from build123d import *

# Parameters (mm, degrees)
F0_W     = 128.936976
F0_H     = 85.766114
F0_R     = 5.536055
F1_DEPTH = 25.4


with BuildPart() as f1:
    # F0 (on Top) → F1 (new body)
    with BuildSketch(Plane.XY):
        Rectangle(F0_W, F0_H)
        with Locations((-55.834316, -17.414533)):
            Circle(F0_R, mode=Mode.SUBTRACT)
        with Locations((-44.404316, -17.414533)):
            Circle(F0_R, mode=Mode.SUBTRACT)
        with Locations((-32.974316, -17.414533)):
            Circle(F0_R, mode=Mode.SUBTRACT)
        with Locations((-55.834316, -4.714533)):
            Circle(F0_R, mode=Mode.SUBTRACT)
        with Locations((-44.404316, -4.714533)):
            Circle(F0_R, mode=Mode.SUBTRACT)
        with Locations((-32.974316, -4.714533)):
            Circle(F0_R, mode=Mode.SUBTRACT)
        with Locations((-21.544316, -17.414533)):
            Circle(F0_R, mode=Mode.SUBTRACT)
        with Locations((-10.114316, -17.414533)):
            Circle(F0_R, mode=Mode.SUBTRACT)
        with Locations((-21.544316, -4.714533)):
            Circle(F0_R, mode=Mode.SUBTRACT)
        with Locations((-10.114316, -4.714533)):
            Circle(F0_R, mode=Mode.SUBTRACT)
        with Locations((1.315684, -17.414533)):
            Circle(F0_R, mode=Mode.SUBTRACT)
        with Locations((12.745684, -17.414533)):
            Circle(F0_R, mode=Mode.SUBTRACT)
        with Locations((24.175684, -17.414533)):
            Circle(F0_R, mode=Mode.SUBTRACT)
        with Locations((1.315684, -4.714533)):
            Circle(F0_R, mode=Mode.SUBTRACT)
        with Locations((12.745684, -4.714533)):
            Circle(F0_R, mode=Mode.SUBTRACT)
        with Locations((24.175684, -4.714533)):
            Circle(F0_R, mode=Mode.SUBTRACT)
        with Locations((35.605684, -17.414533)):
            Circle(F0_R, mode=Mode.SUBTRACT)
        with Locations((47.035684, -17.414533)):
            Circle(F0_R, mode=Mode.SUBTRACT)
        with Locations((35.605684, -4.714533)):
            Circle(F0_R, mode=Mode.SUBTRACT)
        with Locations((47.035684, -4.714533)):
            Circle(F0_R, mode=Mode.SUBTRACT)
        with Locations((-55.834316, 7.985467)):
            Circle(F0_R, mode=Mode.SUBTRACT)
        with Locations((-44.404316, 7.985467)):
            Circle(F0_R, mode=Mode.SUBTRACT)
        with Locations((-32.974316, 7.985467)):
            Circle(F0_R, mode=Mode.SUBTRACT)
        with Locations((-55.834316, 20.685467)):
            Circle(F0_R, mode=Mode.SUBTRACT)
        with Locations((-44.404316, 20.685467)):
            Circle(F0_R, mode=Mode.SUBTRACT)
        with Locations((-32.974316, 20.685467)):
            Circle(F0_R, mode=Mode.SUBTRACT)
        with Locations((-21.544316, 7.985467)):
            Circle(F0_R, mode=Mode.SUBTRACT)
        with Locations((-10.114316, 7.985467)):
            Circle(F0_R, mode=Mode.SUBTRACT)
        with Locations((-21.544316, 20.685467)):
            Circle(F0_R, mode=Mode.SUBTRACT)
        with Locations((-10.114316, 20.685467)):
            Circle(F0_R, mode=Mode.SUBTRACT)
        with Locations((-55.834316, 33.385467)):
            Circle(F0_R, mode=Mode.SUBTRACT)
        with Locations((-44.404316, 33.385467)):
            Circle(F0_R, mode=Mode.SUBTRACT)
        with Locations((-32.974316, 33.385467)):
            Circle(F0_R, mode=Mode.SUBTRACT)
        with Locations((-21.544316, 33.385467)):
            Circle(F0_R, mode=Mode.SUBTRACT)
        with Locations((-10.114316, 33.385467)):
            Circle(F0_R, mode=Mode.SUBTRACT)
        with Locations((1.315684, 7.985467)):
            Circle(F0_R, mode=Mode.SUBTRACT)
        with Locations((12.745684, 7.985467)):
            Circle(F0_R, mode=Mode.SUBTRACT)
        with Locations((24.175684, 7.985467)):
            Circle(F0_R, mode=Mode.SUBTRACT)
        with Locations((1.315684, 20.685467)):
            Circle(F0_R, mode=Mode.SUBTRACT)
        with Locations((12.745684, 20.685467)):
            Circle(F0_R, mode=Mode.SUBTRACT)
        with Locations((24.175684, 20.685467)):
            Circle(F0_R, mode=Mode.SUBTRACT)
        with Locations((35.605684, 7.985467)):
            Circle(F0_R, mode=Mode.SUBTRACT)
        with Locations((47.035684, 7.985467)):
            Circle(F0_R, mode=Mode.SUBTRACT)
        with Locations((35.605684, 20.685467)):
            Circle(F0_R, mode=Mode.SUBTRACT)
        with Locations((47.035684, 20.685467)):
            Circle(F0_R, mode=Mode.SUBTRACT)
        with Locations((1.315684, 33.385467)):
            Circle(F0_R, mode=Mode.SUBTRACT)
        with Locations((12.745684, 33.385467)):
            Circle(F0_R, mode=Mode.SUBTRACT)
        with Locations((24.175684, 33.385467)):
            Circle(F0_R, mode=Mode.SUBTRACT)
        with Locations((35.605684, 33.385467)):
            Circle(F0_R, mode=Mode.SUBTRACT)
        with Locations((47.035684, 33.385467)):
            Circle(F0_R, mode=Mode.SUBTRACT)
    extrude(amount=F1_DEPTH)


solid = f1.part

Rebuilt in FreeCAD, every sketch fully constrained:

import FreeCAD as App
import Part
import Sketcher
from FreeCAD import Vector
Q = App.Units.Quantity

doc = App.newDocument("Part")
body = doc.addObject("PartDesign::Body", "Body")

# Sketch on XY plane
sketch1 = doc.addObject("Sketcher::SketchObject", "Sketch")
body.addObject(sketch1)
sketch1.AttachmentSupport = (doc.XY_Plane, [""])
sketch1.MapMode = "FlatFace"
sketch1.addGeometry(Part.LineSegment(Vector(-64, 43, 0), Vector(-64, -43, 0)), False)
sketch1.addGeometry(Part.LineSegment(Vector(-64, -43, 0), Vector(64, -43, 0)), False)
sketch1.addGeometry(Part.LineSegment(Vector(64, -43, 0), Vector(64, 43, 0)), False)
sketch1.addGeometry(Part.LineSegment(Vector(64, 43, 0), Vector(-64, 43, 0)), False)
sketch1.addGeometry(Part.Circle(Vector(-56, -17, 0), Vector(0, 0, 1), 6), False)
sketch1.addGeometry(Part.Circle(Vector(-44, -17, 0), Vector(0, 0, 1), 6), False)
sketch1.addGeometry(Part.Circle(Vector(-33, -17, 0), Vector(0, 0, 1), 6), False)
sketch1.addGeometry(Part.Circle(Vector(-22, -17, 0), Vector(0, 0, 1), 6), False)
sketch1.addGeometry(Part.Circle(Vector(-10, -17, 0), Vector(0, 0, 1), 6), False)
sketch1.addGeometry(Part.Circle(Vector(-56, -5, 0), Vector(0, 0, 1), 6), False)
sketch1.addGeometry(Part.Circle(Vector(-44, -5, 0), Vector(0, 0, 1), 6), False)
sketch1.addGeometry(Part.Circle(Vector(-33, -5, 0), Vector(0, 0, 1), 6), False)
sketch1.addGeometry(Part.Circle(Vector(-22, -5, 0), Vector(0, 0, 1), 6), False)
sketch1.addGeometry(Part.Circle(Vector(-10, -5, 0), Vector(0, 0, 1), 6), False)
sketch1.addGeometry(Part.Circle(Vector(1, -17, 0), Vector(0, 0, 1), 6), False)
sketch1.addGeometry(Part.Circle(Vector(13, -17, 0), Vector(0, 0, 1), 6), False)
sketch1.addGeometry(Part.Circle(Vector(24, -17, 0), Vector(0, 0, 1), 6), False)
sketch1.addGeometry(Part.Circle(Vector(36, -17, 0), Vector(0, 0, 1), 6), False)
sketch1.addGeometry(Part.Circle(Vector(47, -17, 0), Vector(0, 0, 1), 6), False)
sketch1.addGeometry(Part.Circle(Vector(1, -5, 0), Vector(0, 0, 1), 6), False)
sketch1.addGeometry(Part.Circle(Vector(13, -5, 0), Vector(0, 0, 1), 6), False)
sketch1.addGeometry(Part.Circle(Vector(24, -5, 0), Vector(0, 0, 1), 6), False)
sketch1.addGeometry(Part.Circle(Vector(36, -5, 0), Vector(0, 0, 1), 6), False)
sketch1.addGeometry(Part.Circle(Vector(47, -5, 0), Vector(0, 0, 1), 6), False)
sketch1.addGeometry(Part.Circle(Vector(-56, 8, 0), Vector(0, 0, 1), 6), False)
sketch1.addGeometry(Part.Circle(Vector(-44, 8, 0), Vector(0, 0, 1), 6), False)
sketch1.addGeometry(Part.Circle(Vector(-33, 8, 0), Vector(0, 0, 1), 6), False)
sketch1.addGeometry(Part.Circle(Vector(-56, 21, 0), Vector(0, 0, 1), 6), False)
sketch1.addGeometry(Part.Circle(Vector(-44, 21, 0), Vector(0, 0, 1), 6), False)
sketch1.addGeometry(Part.Circle(Vector(-33, 21, 0), Vector(0, 0, 1), 6), False)
sketch1.addGeometry(Part.Circle(Vector(-22, 8, 0), Vector(0, 0, 1), 6), False)
sketch1.addGeometry(Part.Circle(Vector(-10, 8, 0), Vector(0, 0, 1), 6), False)
sketch1.addGeometry(Part.Circle(Vector(-22, 21, 0), Vector(0, 0, 1), 6), False)
sketch1.addGeometry(Part.Circle(Vector(-10, 21, 0), Vector(0, 0, 1), 6), False)
sketch1.addGeometry(Part.Circle(Vector(-56, 33, 0), Vector(0, 0, 1), 6), False)
sketch1.addGeometry(Part.Circle(Vector(-44, 33, 0), Vector(0, 0, 1), 6), False)
sketch1.addGeometry(Part.Circle(Vector(-33, 33, 0), Vector(0, 0, 1), 6), False)
sketch1.addGeometry(Part.Circle(Vector(-22, 33, 0), Vector(0, 0, 1), 6), False)
sketch1.addGeometry(Part.Circle(Vector(-10, 33, 0), Vector(0, 0, 1), 6), False)
sketch1.addGeometry(Part.Circle(Vector(1, 8, 0), Vector(0, 0, 1), 6), False)
sketch1.addGeometry(Part.Circle(Vector(13, 8, 0), Vector(0, 0, 1), 6), False)
sketch1.addGeometry(Part.Circle(Vector(1, 21, 0), Vector(0, 0, 1), 6), False)
sketch1.addGeometry(Part.Circle(Vector(13, 21, 0), Vector(0, 0, 1), 6), False)
sketch1.addGeometry(Part.Circle(Vector(24, 8, 0), Vector(0, 0, 1), 6), False)
sketch1.addGeometry(Part.Circle(Vector(36, 8, 0), Vector(0, 0, 1), 6), False)
sketch1.addGeometry(Part.Circle(Vector(47, 8, 0), Vector(0, 0, 1), 6), False)
sketch1.addGeometry(Part.Circle(Vector(24, 21, 0), Vector(0, 0, 1), 6), False)
sketch1.addGeometry(Part.Circle(Vector(36, 21, 0), Vector(0, 0, 1), 6), False)
sketch1.addGeometry(Part.Circle(Vector(47, 21, 0), Vector(0, 0, 1), 6), False)
sketch1.addGeometry(Part.Circle(Vector(1, 33, 0), Vector(0, 0, 1), 6), False)
sketch1.addGeometry(Part.Circle(Vector(13, 33, 0), Vector(0, 0, 1), 6), False)
sketch1.addGeometry(Part.Circle(Vector(24, 33, 0), Vector(0, 0, 1), 6), False)
sketch1.addGeometry(Part.Circle(Vector(36, 33, 0), Vector(0, 0, 1), 6), False)
sketch1.addGeometry(Part.Circle(Vector(47, 33, 0), Vector(0, 0, 1), 6), False)
sketch1.addConstraint(Sketcher.Constraint("Coincident", 0, 2, 1, 1))
sketch1.addConstraint(Sketcher.Constraint("Coincident", 1, 2, 2, 1))
sketch1.addConstraint(Sketcher.Constraint("Coincident", 2, 2, 3, 1))
sketch1.addConstraint(Sketcher.Constraint("Coincident", 3, 2, 0, 1))
sketch1.addConstraint(Sketcher.Constraint("Vertical", 0))
sketch1.addConstraint(Sketcher.Constraint("Horizontal", 1))
sketch1.addConstraint(Sketcher.Constraint("Vertical", 2))
sketch1.addConstraint(Sketcher.Constraint("Horizontal", 3))
sketch1.addConstraint(Sketcher.Constraint("Equal", 4, 5))
sketch1.addConstraint(Sketcher.Constraint("Equal", 5, 6))
sketch1.addConstraint(Sketcher.Constraint("Equal", 6, 7))
sketch1.addConstraint(Sketcher.Constraint("Equal", 7, 8))
sketch1.addConstraint(Sketcher.Constraint("Equal", 8, 9))
sketch1.addConstraint(Sketcher.Constraint("Equal", 9, 10))
sketch1.addConstraint(Sketcher.Constraint("Equal", 10, 11))
sketch1.addConstraint(Sketcher.Constraint("Equal", 11, 12))
sketch1.addConstraint(Sketcher.Constraint("Equal", 12, 13))
sketch1.addConstraint(Sketcher.Constraint("Equal", 13, 14))
sketch1.addConstraint(Sketcher.Constraint("Equal", 14, 15))
sketch1.addConstraint(Sketcher.Constraint("Equal", 15, 16))
sketch1.addConstraint(Sketcher.Constraint("Equal", 16, 17))
sketch1.addConstraint(Sketcher.Constraint("Equal", 17, 18))
sketch1.addConstraint(Sketcher.Constraint("Equal", 18, 19))
sketch1.addConstraint(Sketcher.Constraint("Equal", 19, 20))
sketch1.addConstraint(Sketcher.Constraint("Equal", 20, 21))
sketch1.addConstraint(Sketcher.Constraint("Equal", 21, 22))
sketch1.addConstraint(Sketcher.Constraint("Equal", 22, 23))
sketch1.addConstraint(Sketcher.Constraint("Equal", 23, 24))
sketch1.addConstraint(Sketcher.Constraint("Equal", 24, 25))
sketch1.addConstraint(Sketcher.Constraint("Equal", 25, 26))
sketch1.addConstraint(Sketcher.Constraint("Equal", 26, 27))
sketch1.addConstraint(Sketcher.Constraint("Equal", 27, 28))
sketch1.addConstraint(Sketcher.Constraint("Equal", 28, 29))
sketch1.addConstraint(Sketcher.Constraint("Equal", 29, 30))
sketch1.addConstraint(Sketcher.Constraint("Equal", 30, 31))
sketch1.addConstraint(Sketcher.Constraint("Equal", 31, 32))
sketch1.addConstraint(Sketcher.Constraint("Equal", 32, 33))
sketch1.addConstraint(Sketcher.Constraint("Equal", 33, 34))
sketch1.addConstraint(Sketcher.Constraint("Equal", 34, 35))
sketch1.addConstraint(Sketcher.Constraint("Equal", 35, 36))
sketch1.addConstraint(Sketcher.Constraint("Equal", 36, 37))
sketch1.addConstraint(Sketcher.Constraint("Equal", 37, 38))
sketch1.addConstraint(Sketcher.Constraint("Equal", 38, 39))
sketch1.addConstraint(Sketcher.Constraint("Equal", 39, 40))
sketch1.addConstraint(Sketcher.Constraint("Equal", 40, 41))
sketch1.addConstraint(Sketcher.Constraint("Equal", 41, 42))
sketch1.addConstraint(Sketcher.Constraint("Equal", 42, 43))
sketch1.addConstraint(Sketcher.Constraint("Equal", 43, 44))
sketch1.addConstraint(Sketcher.Constraint("Equal", 44, 45))
sketch1.addConstraint(Sketcher.Constraint("Equal", 45, 46))
sketch1.addConstraint(Sketcher.Constraint("Equal", 46, 47))
sketch1.addConstraint(Sketcher.Constraint("Equal", 47, 48))
sketch1.addConstraint(Sketcher.Constraint("Equal", 48, 49))
sketch1.addConstraint(Sketcher.Constraint("Equal", 49, 50))
sketch1.addConstraint(Sketcher.Constraint("Equal", 50, 51))
sketch1.addConstraint(Sketcher.Constraint("Equal", 51, 52))
sketch1.addConstraint(Sketcher.Constraint("Equal", 52, 53))
sketch1.addConstraint(Sketcher.Constraint("Symmetric", 0, 2, 2, 2, -1, 1))
sketch1.addConstraint(Sketcher.Constraint("Horizontal", 4, 3, 5, 3))
sketch1.addConstraint(Sketcher.Constraint("Horizontal", 5, 3, 6, 3))
sketch1.addConstraint(Sketcher.Constraint("Horizontal", 6, 3, 7, 3))
sketch1.addConstraint(Sketcher.Constraint("Horizontal", 7, 3, 8, 3))
sketch1.addConstraint(Sketcher.Constraint("Horizontal", 9, 3, 10, 3))
sketch1.addConstraint(Sketcher.Constraint("Horizontal", 10, 3, 11, 3))
sketch1.addConstraint(Sketcher.Constraint("Horizontal", 11, 3, 12, 3))
sketch1.addConstraint(Sketcher.Constraint("Horizontal", 12, 3, 13, 3))
sketch1.addConstraint(Sketcher.Constraint("Horizontal", 8, 3, 14, 3))
sketch1.addConstraint(Sketcher.Constraint("Horizontal", 14, 3, 15, 3))
sketch1.addConstraint(Sketcher.Constraint("Horizontal", 15, 3, 16, 3))
sketch1.addConstraint(Sketcher.Constraint("Horizontal", 16, 3, 17, 3))
sketch1.addConstraint(Sketcher.Constraint("Horizontal", 17, 3, 18, 3))
sketch1.addConstraint(Sketcher.Constraint("Horizontal", 13, 3, 19, 3))
sketch1.addConstraint(Sketcher.Constraint("Horizontal", 19, 3, 20, 3))
sketch1.addConstraint(Sketcher.Constraint("Horizontal", 20, 3, 21, 3))
sketch1.addConstraint(Sketcher.Constraint("Horizontal", 21, 3, 22, 3))
sketch1.addConstraint(Sketcher.Constraint("Horizontal", 22, 3, 23, 3))
sketch1.addConstraint(Sketcher.Constraint("Horizontal", 24, 3, 25, 3))
sketch1.addConstraint(Sketcher.Constraint("Horizontal", 25, 3, 26, 3))
sketch1.addConstraint(Sketcher.Constraint("Horizontal", 27, 3, 28, 3))
sketch1.addConstraint(Sketcher.Constraint("Horizontal", 28, 3, 29, 3))
sketch1.addConstraint(Sketcher.Constraint("Horizontal", 26, 3, 30, 3))
sketch1.addConstraint(Sketcher.Constraint("Horizontal", 30, 3, 31, 3))
sketch1.addConstraint(Sketcher.Constraint("Horizontal", 29, 3, 32, 3))
sketch1.addConstraint(Sketcher.Constraint("Horizontal", 32, 3, 33, 3))
sketch1.addConstraint(Sketcher.Constraint("Horizontal", 34, 3, 35, 3))
sketch1.addConstraint(Sketcher.Constraint("Horizontal", 35, 3, 36, 3))
sketch1.addConstraint(Sketcher.Constraint("Horizontal", 36, 3, 37, 3))
sketch1.addConstraint(Sketcher.Constraint("Horizontal", 37, 3, 38, 3))
sketch1.addConstraint(Sketcher.Constraint("Horizontal", 31, 3, 39, 3))
sketch1.addConstraint(Sketcher.Constraint("Horizontal", 39, 3, 40, 3))
sketch1.addConstraint(Sketcher.Constraint("Horizontal", 33, 3, 41, 3))
sketch1.addConstraint(Sketcher.Constraint("Horizontal", 41, 3, 42, 3))
sketch1.addConstraint(Sketcher.Constraint("Horizontal", 40, 3, 43, 3))
sketch1.addConstraint(Sketcher.Constraint("Horizontal", 43, 3, 44, 3))
sketch1.addConstraint(Sketcher.Constraint("Horizontal", 44, 3, 45, 3))
sketch1.addConstraint(Sketcher.Constraint("Horizontal", 42, 3, 46, 3))
sketch1.addConstraint(Sketcher.Constraint("Horizontal", 46, 3, 47, 3))
sketch1.addConstraint(Sketcher.Constraint("Horizontal", 47, 3, 48, 3))
sketch1.addConstraint(Sketcher.Constraint("Horizontal", 38, 3, 49, 3))
sketch1.addConstraint(Sketcher.Constraint("Horizontal", 49, 3, 50, 3))
sketch1.addConstraint(Sketcher.Constraint("Horizontal", 50, 3, 51, 3))
sketch1.addConstraint(Sketcher.Constraint("Horizontal", 51, 3, 52, 3))
sketch1.addConstraint(Sketcher.Constraint("Horizontal", 52, 3, 53, 3))
sketch1.addConstraint(Sketcher.Constraint("Vertical", 4, 3, 9, 3))
sketch1.addConstraint(Sketcher.Constraint("Vertical", 5, 3, 10, 3))
sketch1.addConstraint(Sketcher.Constraint("Vertical", 6, 3, 11, 3))
sketch1.addConstraint(Sketcher.Constraint("Vertical", 7, 3, 12, 3))
sketch1.addConstraint(Sketcher.Constraint("Vertical", 8, 3, 13, 3))
sketch1.addConstraint(Sketcher.Constraint("Vertical", 14, 3, 19, 3))
sketch1.addConstraint(Sketcher.Constraint("Vertical", 15, 3, 20, 3))
sketch1.addConstraint(Sketcher.Constraint("Vertical", 16, 3, 21, 3))
sketch1.addConstraint(Sketcher.Constraint("Vertical", 17, 3, 22, 3))
sketch1.addConstraint(Sketcher.Constraint("Vertical", 18, 3, 23, 3))
sketch1.addConstraint(Sketcher.Constraint("Vertical", 9, 3, 24, 3))
sketch1.addConstraint(Sketcher.Constraint("Vertical", 10, 3, 25, 3))
sketch1.addConstraint(Sketcher.Constraint("Vertical", 11, 3, 26, 3))
sketch1.addConstraint(Sketcher.Constraint("Vertical", 24, 3, 27, 3))
sketch1.addConstraint(Sketcher.Constraint("Vertical", 25, 3, 28, 3))
sketch1.addConstraint(Sketcher.Constraint("Vertical", 26, 3, 29, 3))
sketch1.addConstraint(Sketcher.Constraint("Vertical", 12, 3, 30, 3))
sketch1.addConstraint(Sketcher.Constraint("Vertical", 13, 3, 31, 3))
sketch1.addConstraint(Sketcher.Constraint("Vertical", 30, 3, 32, 3))
sketch1.addConstraint(Sketcher.Constraint("Vertical", 31, 3, 33, 3))
sketch1.addConstraint(Sketcher.Constraint("Vertical", 27, 3, 34, 3))
sketch1.addConstraint(Sketcher.Constraint("Vertical", 28, 3, 35, 3))
sketch1.addConstraint(Sketcher.Constraint("Vertical", 29, 3, 36, 3))
sketch1.addConstraint(Sketcher.Constraint("Vertical", 32, 3, 37, 3))
sketch1.addConstraint(Sketcher.Constraint("Vertical", 33, 3, 38, 3))
sketch1.addConstraint(Sketcher.Constraint("Vertical", 19, 3, 39, 3))
sketch1.addConstraint(Sketcher.Constraint("Vertical", 20, 3, 40, 3))
sketch1.addConstraint(Sketcher.Constraint("Vertical", 39, 3, 41, 3))
sketch1.addConstraint(Sketcher.Constraint("Vertical", 40, 3, 42, 3))
sketch1.addConstraint(Sketcher.Constraint("Vertical", 21, 3, 43, 3))
sketch1.addConstraint(Sketcher.Constraint("Vertical", 22, 3, 44, 3))
sketch1.addConstraint(Sketcher.Constraint("Vertical", 23, 3, 45, 3))
sketch1.addConstraint(Sketcher.Constraint("Vertical", 43, 3, 46, 3))
sketch1.addConstraint(Sketcher.Constraint("Vertical", 44, 3, 47, 3))
sketch1.addConstraint(Sketcher.Constraint("Vertical", 45, 3, 48, 3))
sketch1.addConstraint(Sketcher.Constraint("Vertical", 41, 3, 49, 3))
sketch1.addConstraint(Sketcher.Constraint("Vertical", 42, 3, 50, 3))
sketch1.addConstraint(Sketcher.Constraint("Vertical", 46, 3, 51, 3))
sketch1.addConstraint(Sketcher.Constraint("Vertical", 47, 3, 52, 3))
sketch1.addConstraint(Sketcher.Constraint("Vertical", 48, 3, 53, 3))
sketch1.addConstraint(Sketcher.Constraint("DistanceY", 4, 3, 24, 3, Q("1 in")))
sketch1.addConstraint(Sketcher.Constraint("DistanceY", 9, 3, 27, 3, Q("1 in")))
sketch1.addConstraint(Sketcher.Constraint("DistanceY", 24, 3, 34, 3, Q("1 in")))
sketch1.addConstraint(Sketcher.Constraint("DistanceX", 4, 3, 6, 3, Q("0.9 in")))
sketch1.addConstraint(Sketcher.Constraint("DistanceX", 5, 3, 7, 3, Q("0.9 in")))
sketch1.addConstraint(Sketcher.Constraint("DistanceX", 6, 3, 8, 3, Q("0.9 in")))
sketch1.addConstraint(Sketcher.Constraint("DistanceY", 4, 3, 9, 3, Q("0.5 in")))
sketch1.addConstraint(Sketcher.Constraint("DistanceX", 7, 3, 14, 3, Q("0.9 in")))
sketch1.addConstraint(Sketcher.Constraint("DistanceX", 8, 3, 15, 3, Q("0.9 in")))
sketch1.addConstraint(Sketcher.Constraint("DistanceX", 14, 3, 16, 3, Q("0.9 in")))
sketch1.addConstraint(Sketcher.Constraint("DistanceX", 15, 3, 17, 3, Q("0.9 in")))
sketch1.addConstraint(Sketcher.Constraint("DistanceX", 16, 3, 18, 3, Q("0.9 in")))
sketch1.addConstraint(Sketcher.Constraint("DistanceX", 4, 3, 5, 3, Q("0.45 in")))
sketch1.addConstraint(Sketcher.Constraint("Diameter", 4, 11.07211))
sketch1.addConstraint(Sketcher.Constraint("DistanceX", 1, 1, 1, 2, 128.936976))
sketch1.addConstraint(Sketcher.Constraint("DistanceY", 0, 2, 0, 1, 85.766114))
sketch1.addConstraint(Sketcher.Constraint("DistanceX", 0, 2, 4, 3, 8.634172))
sketch1.addConstraint(Sketcher.Constraint("DistanceY", 53, 3, 2, 2, 9.49759))
pad1 = doc.addObject("PartDesign::Pad", "Pad")
body.addObject(pad1)
pad1.Profile = sketch1
pad1.Length = Q("1 in")

doc.recompute()
